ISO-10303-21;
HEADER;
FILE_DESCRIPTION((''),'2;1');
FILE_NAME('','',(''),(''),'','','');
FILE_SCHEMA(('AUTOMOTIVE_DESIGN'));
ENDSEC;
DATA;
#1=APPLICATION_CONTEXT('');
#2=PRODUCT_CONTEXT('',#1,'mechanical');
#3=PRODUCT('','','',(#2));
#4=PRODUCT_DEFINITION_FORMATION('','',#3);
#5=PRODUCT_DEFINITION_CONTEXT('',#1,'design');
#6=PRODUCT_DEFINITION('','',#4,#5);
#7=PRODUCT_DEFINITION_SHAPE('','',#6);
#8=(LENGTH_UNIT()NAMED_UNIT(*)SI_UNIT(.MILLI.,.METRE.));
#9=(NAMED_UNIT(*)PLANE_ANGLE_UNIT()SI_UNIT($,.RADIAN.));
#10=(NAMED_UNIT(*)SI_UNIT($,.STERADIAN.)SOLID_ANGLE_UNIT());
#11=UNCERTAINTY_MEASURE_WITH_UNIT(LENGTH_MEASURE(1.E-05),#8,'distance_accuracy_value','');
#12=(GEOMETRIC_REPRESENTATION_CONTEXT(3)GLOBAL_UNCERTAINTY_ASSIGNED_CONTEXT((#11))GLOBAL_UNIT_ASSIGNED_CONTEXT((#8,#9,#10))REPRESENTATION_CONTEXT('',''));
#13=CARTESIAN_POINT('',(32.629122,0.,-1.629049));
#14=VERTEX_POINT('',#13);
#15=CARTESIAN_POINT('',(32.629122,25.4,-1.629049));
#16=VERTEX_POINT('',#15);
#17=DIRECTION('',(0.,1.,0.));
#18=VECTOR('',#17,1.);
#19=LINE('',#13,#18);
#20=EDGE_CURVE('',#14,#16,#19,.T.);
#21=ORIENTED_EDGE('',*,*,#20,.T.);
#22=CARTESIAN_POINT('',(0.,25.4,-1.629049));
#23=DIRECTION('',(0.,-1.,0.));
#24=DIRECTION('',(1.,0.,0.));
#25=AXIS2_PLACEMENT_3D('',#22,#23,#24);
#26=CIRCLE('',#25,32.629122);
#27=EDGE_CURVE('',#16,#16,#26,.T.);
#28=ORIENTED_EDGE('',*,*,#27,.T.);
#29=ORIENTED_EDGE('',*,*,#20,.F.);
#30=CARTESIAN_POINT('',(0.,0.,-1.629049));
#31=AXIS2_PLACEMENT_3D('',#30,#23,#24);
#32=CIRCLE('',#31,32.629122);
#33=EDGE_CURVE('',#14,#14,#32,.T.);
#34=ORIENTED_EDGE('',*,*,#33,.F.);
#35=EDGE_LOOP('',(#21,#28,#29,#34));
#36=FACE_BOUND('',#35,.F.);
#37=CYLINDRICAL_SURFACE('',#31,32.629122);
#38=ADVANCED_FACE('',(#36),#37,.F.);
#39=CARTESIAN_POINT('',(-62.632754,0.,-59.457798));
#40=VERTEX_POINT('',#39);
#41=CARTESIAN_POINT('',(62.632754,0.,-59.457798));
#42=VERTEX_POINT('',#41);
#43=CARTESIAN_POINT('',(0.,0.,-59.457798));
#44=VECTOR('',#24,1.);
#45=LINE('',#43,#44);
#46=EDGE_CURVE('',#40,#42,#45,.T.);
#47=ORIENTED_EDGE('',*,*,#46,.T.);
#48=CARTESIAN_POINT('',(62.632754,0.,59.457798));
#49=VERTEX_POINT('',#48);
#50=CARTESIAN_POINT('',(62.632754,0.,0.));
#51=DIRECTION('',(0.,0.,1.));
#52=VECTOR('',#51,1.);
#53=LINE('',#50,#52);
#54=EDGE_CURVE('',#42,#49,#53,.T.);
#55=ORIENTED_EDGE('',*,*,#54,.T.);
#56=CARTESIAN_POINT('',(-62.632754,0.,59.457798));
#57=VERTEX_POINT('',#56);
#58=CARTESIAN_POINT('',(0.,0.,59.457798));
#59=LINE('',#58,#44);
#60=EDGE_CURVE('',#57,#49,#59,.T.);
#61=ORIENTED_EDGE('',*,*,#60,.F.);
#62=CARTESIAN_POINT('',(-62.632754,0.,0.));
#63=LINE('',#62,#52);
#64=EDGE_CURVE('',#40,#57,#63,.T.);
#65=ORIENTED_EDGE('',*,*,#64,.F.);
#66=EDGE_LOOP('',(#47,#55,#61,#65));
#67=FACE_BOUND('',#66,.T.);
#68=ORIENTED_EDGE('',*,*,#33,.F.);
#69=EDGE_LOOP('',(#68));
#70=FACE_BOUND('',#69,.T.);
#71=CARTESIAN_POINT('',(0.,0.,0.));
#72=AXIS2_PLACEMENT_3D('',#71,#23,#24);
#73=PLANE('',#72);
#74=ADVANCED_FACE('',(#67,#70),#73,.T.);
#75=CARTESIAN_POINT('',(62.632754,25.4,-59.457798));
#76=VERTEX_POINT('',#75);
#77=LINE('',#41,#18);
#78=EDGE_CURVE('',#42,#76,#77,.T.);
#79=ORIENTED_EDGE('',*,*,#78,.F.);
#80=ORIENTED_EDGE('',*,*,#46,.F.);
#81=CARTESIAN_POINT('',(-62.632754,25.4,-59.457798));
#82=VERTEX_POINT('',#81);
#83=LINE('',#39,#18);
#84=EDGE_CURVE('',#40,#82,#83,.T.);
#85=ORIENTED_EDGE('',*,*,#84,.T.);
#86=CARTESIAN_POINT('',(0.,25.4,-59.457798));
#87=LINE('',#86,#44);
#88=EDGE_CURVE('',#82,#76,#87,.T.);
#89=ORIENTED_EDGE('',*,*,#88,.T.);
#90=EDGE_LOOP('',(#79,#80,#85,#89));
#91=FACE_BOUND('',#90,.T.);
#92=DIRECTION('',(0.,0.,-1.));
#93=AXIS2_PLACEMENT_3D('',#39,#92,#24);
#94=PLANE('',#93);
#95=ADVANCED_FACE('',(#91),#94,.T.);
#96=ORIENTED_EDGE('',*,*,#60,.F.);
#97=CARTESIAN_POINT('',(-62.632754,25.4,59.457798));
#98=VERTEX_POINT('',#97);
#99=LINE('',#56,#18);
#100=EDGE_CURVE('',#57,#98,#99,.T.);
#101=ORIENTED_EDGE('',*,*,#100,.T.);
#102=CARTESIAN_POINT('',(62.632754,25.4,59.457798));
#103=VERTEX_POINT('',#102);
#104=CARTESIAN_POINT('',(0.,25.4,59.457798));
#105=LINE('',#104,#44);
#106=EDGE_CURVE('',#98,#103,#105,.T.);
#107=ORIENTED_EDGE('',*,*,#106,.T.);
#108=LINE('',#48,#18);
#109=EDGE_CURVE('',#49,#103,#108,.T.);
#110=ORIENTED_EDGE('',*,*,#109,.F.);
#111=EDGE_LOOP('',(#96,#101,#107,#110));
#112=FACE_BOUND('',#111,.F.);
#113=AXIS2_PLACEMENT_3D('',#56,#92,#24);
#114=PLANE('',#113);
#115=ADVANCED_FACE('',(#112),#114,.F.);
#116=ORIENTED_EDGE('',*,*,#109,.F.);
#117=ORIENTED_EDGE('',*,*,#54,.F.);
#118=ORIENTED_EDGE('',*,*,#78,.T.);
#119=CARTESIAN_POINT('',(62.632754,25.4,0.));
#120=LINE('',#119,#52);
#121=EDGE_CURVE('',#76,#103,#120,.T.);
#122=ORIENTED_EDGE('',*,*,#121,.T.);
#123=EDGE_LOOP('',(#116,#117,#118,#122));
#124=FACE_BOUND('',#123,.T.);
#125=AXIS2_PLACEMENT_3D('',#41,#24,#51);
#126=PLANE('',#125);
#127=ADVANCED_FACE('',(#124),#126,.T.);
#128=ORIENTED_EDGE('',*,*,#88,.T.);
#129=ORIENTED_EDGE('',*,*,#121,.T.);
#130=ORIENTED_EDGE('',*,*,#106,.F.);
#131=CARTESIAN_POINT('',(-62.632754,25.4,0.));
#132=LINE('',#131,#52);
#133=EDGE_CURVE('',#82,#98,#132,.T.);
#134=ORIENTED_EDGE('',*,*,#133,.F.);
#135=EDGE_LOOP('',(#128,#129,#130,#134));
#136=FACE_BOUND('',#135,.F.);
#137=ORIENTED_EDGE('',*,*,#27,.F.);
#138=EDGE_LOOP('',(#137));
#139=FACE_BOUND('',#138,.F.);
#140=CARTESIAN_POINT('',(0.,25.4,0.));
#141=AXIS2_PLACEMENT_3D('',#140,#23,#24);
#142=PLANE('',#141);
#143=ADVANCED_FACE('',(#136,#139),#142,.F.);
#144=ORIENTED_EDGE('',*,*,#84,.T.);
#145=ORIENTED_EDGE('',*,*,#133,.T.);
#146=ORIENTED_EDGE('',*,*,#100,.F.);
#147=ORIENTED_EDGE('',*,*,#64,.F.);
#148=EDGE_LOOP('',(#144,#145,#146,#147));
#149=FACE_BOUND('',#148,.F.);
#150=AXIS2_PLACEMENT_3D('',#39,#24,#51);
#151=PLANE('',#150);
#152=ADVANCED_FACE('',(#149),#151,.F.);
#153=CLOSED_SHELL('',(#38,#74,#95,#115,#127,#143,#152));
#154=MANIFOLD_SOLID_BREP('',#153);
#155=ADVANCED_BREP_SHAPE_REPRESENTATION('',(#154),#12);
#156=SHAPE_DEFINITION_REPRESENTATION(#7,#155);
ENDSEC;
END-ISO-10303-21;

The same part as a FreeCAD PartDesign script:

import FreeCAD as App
import Part
import Sketcher
Q = App.Units.Quantity

doc = App.newDocument("Part")
body = doc.addObject("PartDesign::Body", "Body")

sketch1 = body.newObject("Sketcher::SketchObject", "Sketch")
sketch1.AttachmentSupport = (doc.getObject("XZ_Plane"), [""])
sketch1.MapMode = "FlatFace"
sketch1.addGeometry([
    Part.LineSegment(App.Vector(-63, 59, 0), App.Vector(-63, -59, 0)),
    Part.LineSegment(App.Vector(-63, -59, 0), App.Vector(63, -59, 0)),
    Part.LineSegment(App.Vector(63, -59, 0), App.Vector(63, 59, 0)),
    Part.LineSegment(App.Vector(63, 59, 0), App.Vector(-63, 59, 0)),
    Part.Circle(App.Vector(0, -2, 0), App.Vector(0, 0, 1), 33),
], False)
sketch1.addConstraint([
    Sketcher.Constraint("Coincident", 0, 2, 1, 1),
    Sketcher.Constraint("Coincident", 1, 2, 2, 1),
    Sketcher.Constraint("Coincident", 2, 2, 3, 1),
    Sketcher.Constraint("Coincident", 3, 2, 0, 1),
    Sketcher.Constraint("Vertical", 0),
    Sketcher.Constraint("Horizontal", 1),
    Sketcher.Constraint("Vertical", 2),
    Sketcher.Constraint("Horizontal", 3),
    Sketcher.Constraint("Symmetric", 0, 2, 2, 2, -1, 1),
    Sketcher.Constraint("PointOnObject", 4, 3, -2),
    Sketcher.Constraint("Diameter", 4, 65.258244),
    Sketcher.Constraint("DistanceX", 1, 1, 1, 2, 125.265508),
    Sketcher.Constraint("DistanceY", 0, 2, 0, 1, 118.915596),
    Sketcher.Constraint("DistanceY", 4, 3, -1, 1, 1.629049),
])
pad1 = body.newObject("PartDesign::Pad", "Pad")
pad1.Profile = sketch1
pad1.Length = Q("1 in")
pad1.Reversed = True

doc.recompute()
